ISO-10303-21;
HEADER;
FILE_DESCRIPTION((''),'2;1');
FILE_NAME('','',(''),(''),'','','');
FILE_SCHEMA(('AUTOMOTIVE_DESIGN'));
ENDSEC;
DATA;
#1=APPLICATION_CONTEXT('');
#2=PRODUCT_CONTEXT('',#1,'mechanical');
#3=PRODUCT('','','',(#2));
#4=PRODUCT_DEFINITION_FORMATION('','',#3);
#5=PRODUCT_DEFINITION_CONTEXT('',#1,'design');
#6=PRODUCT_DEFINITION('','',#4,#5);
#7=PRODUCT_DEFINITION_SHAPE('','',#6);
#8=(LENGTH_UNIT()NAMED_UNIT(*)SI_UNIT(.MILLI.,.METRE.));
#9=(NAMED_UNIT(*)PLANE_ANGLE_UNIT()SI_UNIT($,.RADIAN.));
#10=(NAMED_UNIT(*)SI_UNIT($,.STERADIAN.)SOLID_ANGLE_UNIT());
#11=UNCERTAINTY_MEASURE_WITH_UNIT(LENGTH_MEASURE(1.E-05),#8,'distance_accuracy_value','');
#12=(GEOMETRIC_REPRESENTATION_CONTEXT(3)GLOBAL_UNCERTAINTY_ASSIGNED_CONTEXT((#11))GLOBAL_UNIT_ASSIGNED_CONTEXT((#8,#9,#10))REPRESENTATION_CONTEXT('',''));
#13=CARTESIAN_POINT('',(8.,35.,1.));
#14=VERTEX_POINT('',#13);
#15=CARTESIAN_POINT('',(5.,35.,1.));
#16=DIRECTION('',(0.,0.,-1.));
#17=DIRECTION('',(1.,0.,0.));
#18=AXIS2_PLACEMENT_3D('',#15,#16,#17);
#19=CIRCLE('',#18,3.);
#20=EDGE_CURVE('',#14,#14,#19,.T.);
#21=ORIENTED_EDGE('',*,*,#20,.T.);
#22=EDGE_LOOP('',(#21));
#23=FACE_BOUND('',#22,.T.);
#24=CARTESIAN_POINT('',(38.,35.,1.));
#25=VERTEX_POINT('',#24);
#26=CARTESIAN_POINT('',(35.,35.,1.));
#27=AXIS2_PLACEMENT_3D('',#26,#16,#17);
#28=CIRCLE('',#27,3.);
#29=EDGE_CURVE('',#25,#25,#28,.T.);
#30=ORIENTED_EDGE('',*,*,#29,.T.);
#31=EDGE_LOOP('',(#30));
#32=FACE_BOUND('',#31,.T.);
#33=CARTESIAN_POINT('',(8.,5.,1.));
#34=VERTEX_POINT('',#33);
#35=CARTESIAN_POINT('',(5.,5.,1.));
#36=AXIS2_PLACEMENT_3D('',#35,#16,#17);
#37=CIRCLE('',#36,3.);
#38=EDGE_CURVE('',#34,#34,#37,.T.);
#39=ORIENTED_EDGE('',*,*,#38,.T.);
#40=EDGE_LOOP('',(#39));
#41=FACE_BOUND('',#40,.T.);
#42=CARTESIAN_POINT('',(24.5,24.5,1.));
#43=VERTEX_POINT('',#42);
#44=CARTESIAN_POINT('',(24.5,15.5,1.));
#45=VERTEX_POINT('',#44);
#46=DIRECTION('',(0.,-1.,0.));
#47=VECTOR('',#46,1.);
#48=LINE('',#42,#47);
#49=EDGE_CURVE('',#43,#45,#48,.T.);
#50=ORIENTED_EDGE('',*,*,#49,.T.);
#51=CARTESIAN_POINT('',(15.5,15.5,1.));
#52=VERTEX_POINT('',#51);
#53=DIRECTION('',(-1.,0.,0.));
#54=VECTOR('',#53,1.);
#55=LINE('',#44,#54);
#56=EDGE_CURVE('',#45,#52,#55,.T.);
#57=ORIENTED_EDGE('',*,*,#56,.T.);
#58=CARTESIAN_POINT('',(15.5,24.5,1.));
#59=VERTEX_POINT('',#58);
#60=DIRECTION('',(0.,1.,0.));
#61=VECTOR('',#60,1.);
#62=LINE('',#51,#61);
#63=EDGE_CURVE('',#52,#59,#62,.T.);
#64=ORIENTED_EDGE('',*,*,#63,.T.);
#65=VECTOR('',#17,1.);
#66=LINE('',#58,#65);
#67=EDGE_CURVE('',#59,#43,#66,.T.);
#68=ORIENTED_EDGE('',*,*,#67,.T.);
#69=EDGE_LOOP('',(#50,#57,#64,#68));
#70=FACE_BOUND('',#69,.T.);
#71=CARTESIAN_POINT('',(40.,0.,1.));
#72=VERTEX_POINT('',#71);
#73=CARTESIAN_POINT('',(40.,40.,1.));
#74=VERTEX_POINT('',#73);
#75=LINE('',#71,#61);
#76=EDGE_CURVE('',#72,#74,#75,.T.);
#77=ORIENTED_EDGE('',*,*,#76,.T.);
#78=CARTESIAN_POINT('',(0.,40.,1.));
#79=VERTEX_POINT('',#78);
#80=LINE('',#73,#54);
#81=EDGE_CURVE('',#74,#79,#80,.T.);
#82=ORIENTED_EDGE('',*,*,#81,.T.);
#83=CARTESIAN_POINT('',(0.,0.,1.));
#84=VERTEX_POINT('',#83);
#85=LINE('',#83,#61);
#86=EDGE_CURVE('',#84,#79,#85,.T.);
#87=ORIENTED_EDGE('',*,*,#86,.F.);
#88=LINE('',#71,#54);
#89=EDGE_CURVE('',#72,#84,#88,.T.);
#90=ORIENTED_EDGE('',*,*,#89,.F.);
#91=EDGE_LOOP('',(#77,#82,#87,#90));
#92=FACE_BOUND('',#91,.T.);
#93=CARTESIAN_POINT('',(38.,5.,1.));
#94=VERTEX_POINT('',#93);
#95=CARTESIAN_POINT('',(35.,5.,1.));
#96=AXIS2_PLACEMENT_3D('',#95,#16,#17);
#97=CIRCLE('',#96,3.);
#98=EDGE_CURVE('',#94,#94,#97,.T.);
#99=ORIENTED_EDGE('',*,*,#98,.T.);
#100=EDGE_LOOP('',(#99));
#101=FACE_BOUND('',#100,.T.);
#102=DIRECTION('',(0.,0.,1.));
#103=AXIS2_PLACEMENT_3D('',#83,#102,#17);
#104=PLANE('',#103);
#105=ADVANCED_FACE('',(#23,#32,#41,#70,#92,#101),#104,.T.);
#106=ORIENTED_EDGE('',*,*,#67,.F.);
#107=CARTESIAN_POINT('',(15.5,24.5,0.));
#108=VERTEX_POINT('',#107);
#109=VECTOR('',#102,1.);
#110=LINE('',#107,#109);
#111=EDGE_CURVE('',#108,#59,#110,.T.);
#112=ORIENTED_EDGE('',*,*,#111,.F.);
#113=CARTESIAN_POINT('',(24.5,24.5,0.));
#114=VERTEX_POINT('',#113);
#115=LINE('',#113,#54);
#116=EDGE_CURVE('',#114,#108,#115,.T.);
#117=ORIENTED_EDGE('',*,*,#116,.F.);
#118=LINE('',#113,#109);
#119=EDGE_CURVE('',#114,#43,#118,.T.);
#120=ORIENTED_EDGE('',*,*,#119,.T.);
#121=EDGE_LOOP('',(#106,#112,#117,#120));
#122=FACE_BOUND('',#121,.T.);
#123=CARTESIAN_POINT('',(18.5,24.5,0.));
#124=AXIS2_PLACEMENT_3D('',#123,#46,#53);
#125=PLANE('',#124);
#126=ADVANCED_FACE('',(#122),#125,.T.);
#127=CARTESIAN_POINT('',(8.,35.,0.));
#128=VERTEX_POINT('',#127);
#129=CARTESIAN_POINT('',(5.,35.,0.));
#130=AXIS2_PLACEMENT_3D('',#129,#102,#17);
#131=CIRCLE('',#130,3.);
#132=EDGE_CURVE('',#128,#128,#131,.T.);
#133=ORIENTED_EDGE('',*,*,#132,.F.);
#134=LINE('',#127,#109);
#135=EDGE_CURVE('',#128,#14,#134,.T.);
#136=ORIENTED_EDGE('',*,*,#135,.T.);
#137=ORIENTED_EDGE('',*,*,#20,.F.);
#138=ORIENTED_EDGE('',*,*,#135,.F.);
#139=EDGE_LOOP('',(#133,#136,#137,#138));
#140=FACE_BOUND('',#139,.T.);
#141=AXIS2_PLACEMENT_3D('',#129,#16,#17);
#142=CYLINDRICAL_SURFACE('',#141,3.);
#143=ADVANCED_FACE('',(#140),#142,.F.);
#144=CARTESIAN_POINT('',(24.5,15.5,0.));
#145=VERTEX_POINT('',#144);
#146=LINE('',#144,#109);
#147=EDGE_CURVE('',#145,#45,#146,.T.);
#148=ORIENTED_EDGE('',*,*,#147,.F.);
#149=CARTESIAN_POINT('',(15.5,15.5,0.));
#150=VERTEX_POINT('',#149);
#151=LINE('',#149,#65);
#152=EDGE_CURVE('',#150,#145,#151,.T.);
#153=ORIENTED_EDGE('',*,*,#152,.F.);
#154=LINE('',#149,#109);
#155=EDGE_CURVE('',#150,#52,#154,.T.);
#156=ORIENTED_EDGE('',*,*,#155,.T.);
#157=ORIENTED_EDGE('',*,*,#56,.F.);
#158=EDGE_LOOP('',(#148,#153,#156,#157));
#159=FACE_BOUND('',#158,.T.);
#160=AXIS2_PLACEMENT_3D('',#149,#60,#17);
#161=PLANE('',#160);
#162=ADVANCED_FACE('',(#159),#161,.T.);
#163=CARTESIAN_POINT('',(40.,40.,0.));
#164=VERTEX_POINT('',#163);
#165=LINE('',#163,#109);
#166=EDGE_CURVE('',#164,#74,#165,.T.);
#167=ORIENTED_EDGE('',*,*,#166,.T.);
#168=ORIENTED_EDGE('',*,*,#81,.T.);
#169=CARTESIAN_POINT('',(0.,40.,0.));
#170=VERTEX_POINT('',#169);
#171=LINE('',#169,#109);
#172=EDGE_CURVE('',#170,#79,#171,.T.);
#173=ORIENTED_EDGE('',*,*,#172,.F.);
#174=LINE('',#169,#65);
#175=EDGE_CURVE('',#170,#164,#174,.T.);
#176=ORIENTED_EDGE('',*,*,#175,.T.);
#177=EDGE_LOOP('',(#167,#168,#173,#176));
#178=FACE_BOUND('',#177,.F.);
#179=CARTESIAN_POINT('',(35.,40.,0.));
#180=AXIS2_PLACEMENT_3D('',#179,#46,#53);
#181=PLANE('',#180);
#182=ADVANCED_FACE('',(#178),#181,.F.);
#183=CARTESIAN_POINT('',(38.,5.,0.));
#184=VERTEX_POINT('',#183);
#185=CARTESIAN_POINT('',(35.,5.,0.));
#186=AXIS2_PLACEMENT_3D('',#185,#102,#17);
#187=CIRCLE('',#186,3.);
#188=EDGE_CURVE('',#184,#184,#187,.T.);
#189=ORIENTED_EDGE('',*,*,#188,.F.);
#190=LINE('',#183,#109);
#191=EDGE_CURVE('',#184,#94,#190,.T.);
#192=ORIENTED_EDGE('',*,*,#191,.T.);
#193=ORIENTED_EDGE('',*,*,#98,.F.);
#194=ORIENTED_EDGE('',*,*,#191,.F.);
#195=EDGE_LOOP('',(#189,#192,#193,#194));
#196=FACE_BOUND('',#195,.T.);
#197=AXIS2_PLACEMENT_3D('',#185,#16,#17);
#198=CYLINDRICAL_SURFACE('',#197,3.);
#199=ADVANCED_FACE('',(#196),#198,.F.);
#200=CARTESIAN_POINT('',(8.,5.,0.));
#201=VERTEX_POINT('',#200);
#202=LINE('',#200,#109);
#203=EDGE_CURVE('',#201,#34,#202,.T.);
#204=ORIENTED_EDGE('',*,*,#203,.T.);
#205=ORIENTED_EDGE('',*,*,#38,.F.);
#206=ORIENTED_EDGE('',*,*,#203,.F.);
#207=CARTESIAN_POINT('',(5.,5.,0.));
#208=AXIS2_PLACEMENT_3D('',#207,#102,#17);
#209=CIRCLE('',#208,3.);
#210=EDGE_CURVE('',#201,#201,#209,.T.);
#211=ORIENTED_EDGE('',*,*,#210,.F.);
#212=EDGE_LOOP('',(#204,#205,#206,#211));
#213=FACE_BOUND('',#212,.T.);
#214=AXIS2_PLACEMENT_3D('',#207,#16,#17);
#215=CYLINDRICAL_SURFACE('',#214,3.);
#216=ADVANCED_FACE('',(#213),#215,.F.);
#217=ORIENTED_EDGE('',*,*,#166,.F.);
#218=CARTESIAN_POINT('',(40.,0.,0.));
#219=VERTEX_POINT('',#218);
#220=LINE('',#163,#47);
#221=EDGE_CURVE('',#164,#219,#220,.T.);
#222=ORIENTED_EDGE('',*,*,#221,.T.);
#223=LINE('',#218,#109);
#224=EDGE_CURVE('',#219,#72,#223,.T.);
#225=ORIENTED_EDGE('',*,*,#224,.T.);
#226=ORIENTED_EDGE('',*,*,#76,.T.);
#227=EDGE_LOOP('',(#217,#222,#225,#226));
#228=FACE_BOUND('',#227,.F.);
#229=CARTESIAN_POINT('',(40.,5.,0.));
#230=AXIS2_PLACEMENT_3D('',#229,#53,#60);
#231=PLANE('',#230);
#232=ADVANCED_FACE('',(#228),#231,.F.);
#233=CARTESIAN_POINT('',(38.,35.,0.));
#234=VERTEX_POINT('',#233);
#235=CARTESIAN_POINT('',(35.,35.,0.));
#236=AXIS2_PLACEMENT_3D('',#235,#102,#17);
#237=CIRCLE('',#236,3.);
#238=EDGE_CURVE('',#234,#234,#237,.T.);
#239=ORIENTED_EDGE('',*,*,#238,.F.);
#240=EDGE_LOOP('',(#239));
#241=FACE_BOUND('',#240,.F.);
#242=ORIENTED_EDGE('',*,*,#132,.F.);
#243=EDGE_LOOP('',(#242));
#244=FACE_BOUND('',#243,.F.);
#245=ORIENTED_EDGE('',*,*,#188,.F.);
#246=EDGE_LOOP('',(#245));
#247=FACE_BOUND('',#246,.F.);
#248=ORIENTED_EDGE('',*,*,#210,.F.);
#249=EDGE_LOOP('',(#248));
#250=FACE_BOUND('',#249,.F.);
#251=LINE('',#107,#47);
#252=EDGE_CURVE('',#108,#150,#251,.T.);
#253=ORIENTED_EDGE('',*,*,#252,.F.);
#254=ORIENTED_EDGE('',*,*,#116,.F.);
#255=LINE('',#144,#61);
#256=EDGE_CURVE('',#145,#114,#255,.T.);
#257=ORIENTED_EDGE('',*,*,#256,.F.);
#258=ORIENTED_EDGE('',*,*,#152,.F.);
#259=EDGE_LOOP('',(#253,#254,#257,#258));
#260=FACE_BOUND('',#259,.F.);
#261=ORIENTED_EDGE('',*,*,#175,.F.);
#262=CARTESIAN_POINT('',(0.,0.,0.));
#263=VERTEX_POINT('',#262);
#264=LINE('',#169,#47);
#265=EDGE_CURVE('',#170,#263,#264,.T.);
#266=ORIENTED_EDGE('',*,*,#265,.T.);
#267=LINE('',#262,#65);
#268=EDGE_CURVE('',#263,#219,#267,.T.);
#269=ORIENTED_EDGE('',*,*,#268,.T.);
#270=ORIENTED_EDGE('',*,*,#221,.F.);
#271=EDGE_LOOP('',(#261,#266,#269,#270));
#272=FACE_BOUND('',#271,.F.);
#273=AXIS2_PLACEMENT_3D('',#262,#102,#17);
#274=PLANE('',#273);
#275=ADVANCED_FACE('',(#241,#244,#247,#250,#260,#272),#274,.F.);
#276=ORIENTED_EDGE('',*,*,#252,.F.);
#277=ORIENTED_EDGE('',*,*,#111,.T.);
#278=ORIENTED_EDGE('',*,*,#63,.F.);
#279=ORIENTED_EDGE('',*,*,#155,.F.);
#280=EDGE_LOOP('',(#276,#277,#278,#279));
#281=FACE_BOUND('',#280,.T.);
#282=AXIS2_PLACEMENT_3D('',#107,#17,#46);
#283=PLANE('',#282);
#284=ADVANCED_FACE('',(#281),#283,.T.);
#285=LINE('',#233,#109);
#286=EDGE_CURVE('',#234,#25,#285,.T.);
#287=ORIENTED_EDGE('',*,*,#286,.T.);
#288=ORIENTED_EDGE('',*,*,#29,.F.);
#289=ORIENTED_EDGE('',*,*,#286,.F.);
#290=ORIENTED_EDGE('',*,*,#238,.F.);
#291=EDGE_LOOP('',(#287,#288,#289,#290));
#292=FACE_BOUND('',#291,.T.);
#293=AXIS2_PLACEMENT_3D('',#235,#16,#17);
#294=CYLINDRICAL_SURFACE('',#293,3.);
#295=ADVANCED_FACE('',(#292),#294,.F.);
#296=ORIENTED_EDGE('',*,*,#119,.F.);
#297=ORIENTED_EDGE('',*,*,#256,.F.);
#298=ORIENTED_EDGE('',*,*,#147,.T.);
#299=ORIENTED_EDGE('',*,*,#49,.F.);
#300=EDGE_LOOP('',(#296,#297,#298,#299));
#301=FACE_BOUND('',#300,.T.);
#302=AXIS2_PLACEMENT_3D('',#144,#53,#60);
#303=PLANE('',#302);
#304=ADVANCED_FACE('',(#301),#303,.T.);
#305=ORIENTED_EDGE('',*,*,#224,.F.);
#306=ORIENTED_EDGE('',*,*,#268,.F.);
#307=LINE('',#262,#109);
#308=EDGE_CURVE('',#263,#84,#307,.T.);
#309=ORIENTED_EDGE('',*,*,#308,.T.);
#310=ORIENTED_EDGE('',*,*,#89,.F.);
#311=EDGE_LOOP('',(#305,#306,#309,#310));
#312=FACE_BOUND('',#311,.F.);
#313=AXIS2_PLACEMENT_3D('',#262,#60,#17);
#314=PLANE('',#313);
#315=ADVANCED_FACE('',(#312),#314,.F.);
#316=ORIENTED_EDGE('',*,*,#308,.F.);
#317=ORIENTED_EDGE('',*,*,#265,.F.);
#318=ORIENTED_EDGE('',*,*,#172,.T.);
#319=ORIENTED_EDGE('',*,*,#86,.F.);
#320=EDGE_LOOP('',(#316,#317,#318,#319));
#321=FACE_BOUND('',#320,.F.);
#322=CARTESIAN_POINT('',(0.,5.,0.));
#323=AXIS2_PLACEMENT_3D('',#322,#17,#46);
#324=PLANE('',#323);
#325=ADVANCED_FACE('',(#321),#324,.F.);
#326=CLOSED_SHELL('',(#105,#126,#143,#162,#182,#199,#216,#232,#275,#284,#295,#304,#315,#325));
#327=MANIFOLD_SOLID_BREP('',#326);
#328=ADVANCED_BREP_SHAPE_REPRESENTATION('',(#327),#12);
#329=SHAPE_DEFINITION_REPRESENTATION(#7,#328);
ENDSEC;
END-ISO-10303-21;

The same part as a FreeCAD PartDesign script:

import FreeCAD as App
import Part
import Sketcher

V = App.Vector

doc = App.newDocument("Part")
body = doc.addObject("PartDesign::Body", "Body")

# Sketch on XY plane
sketch1 = body.newObject("Sketcher::SketchObject", "Sketch")
sketch1.AttachmentSupport = (doc.getObject("XY_Plane"), [""])
sketch1.MapMode = "FlatFace"
sketch1.addGeometry(Part.LineSegment(V(0, 0, 0), V(40, 0, 0)), False)
sketch1.addGeometry(Part.LineSegment(V(40, 0, 0), V(40, 40, 0)), False)
sketch1.addGeometry(Part.LineSegment(V(40, 40, 0), V(0, 40, 0)), False)
sketch1.addGeometry(Part.LineSegment(V(0, 40, 0), V(0, 0, 0)), False)
sketch1.addGeometry(Part.Circle(V(5, 5, 0), V(0, 0, 1), 3), False)
sketch1.addGeometry(Part.LineSegment(V(24.5, 24.5, 0), V(24.5, 15.5, 0)), False)
sketch1.addGeometry(Part.LineSegment(V(24.5, 15.5, 0), V(15.5, 15.5, 0)), False)
sketch1.addGeometry(Part.LineSegment(V(15.5, 15.5, 0), V(15.5, 24.5, 0)), False)
sketch1.addGeometry(Part.LineSegment(V(15.5, 24.5, 0), V(24.5, 24.5, 0)), False)
sketch1.addGeometry(Part.Circle(V(5, 35, 0), V(0, 0, 1), 3), False)
sketch1.addGeometry(Part.Circle(V(35, 35, 0), V(0, 0, 1), 3), False)
sketch1.addGeometry(Part.Circle(V(35, 5, 0), V(0, 0, 1), 3), False)
sketch1.addConstraint(Sketcher.Constraint("Coincident", 0, 2, 1, 1))
sketch1.addConstraint(Sketcher.Constraint("Coincident", 1, 2, 2, 1))
sketch1.addConstraint(Sketcher.Constraint("Coincident", 2, 2, 3, 1))
sketch1.addConstraint(Sketcher.Constraint("Coincident", 3, 2, 0, 1))
sketch1.addConstraint(Sketcher.Constraint("Coincident", 5, 2, 6, 1))
sketch1.addConstraint(Sketcher.Constraint("Coincident", 6, 2, 7, 1))
sketch1.addConstraint(Sketcher.Constraint("Coincident", 7, 2, 8, 1))
sketch1.addConstraint(Sketcher.Constraint("Coincident", 8, 2, 5, 1))
sketch1.addConstraint(Sketcher.Constraint("Horizontal", 0))
sketch1.addConstraint(Sketcher.Constraint("Vertical", 1))
sketch1.addConstraint(Sketcher.Constraint("Horizontal", 2))
sketch1.addConstraint(Sketcher.Constraint("Vertical", 3))
sketch1.addConstraint(Sketcher.Constraint("Vertical", 5))
sketch1.addConstraint(Sketcher.Constraint("Horizontal", 6))
sketch1.addConstraint(Sketcher.Constraint("Vertical", 7))
sketch1.addConstraint(Sketcher.Constraint("Horizontal", 8))
sketch1.addConstraint(Sketcher.Constraint("Coincident", 3, 2, -1, 1))
sketch1.addConstraint(Sketcher.Constraint("Equal", 4, 9))
sketch1.addConstraint(Sketcher.Constraint("Equal", 9, 10))
sketch1.addConstraint(Sketcher.Constraint("Equal", 10, 11))
sketch1.addConstraint(Sketcher.Constraint("Horizontal", 9, 3, 10, 3))
sketch1.addConstraint(Sketcher.Constraint("Horizontal", 4, 3, 11, 3))
sketch1.addConstraint(Sketcher.Constraint("Vertical", 4, 3, 9, 3))
sketch1.addConstraint(Sketcher.Constraint("Vertical", 10, 3, 11, 3))
sketch1.addConstraint(Sketcher.Constraint("Equal", 2, 1))
sketch1.addConstraint(Sketcher.Constraint("Equal", 8, 5))
sketch1.addConstraint(Sketcher.Constraint("Diameter", 4, 6.0))
sketch1.addConstraint(Sketcher.Constraint("DistanceX", 0, 1, 0, 2, 40.0))
sketch1.addConstraint(Sketcher.Constraint("DistanceX", 6, 2, 6, 1, 9.0))
sketch1.addConstraint(Sketcher.Constraint("DistanceX", -1, 1, 4, 3, 5.0))
sketch1.addConstraint(Sketcher.Constraint("DistanceY", -1, 1, 4, 3, 5.0))
sketch1.addConstraint(Sketcher.Constraint("DistanceX", 11, 3, 0, 2, 5.0))
sketch1.addConstraint(Sketcher.Constraint("DistanceY", 10, 3, 1, 2, 5.0))
sketch1.addConstraint(Sketcher.Constraint("DistanceX", -1, 1, 5, 2, 24.5))
sketch1.addConstraint(Sketcher.Constraint("DistanceY", -1, 1, 5, 2, 15.5))
pad1 = body.newObject("PartDesign::Pad", "Pad")
pad1.Profile = sketch1
pad1.Length = 1

doc.recompute()
